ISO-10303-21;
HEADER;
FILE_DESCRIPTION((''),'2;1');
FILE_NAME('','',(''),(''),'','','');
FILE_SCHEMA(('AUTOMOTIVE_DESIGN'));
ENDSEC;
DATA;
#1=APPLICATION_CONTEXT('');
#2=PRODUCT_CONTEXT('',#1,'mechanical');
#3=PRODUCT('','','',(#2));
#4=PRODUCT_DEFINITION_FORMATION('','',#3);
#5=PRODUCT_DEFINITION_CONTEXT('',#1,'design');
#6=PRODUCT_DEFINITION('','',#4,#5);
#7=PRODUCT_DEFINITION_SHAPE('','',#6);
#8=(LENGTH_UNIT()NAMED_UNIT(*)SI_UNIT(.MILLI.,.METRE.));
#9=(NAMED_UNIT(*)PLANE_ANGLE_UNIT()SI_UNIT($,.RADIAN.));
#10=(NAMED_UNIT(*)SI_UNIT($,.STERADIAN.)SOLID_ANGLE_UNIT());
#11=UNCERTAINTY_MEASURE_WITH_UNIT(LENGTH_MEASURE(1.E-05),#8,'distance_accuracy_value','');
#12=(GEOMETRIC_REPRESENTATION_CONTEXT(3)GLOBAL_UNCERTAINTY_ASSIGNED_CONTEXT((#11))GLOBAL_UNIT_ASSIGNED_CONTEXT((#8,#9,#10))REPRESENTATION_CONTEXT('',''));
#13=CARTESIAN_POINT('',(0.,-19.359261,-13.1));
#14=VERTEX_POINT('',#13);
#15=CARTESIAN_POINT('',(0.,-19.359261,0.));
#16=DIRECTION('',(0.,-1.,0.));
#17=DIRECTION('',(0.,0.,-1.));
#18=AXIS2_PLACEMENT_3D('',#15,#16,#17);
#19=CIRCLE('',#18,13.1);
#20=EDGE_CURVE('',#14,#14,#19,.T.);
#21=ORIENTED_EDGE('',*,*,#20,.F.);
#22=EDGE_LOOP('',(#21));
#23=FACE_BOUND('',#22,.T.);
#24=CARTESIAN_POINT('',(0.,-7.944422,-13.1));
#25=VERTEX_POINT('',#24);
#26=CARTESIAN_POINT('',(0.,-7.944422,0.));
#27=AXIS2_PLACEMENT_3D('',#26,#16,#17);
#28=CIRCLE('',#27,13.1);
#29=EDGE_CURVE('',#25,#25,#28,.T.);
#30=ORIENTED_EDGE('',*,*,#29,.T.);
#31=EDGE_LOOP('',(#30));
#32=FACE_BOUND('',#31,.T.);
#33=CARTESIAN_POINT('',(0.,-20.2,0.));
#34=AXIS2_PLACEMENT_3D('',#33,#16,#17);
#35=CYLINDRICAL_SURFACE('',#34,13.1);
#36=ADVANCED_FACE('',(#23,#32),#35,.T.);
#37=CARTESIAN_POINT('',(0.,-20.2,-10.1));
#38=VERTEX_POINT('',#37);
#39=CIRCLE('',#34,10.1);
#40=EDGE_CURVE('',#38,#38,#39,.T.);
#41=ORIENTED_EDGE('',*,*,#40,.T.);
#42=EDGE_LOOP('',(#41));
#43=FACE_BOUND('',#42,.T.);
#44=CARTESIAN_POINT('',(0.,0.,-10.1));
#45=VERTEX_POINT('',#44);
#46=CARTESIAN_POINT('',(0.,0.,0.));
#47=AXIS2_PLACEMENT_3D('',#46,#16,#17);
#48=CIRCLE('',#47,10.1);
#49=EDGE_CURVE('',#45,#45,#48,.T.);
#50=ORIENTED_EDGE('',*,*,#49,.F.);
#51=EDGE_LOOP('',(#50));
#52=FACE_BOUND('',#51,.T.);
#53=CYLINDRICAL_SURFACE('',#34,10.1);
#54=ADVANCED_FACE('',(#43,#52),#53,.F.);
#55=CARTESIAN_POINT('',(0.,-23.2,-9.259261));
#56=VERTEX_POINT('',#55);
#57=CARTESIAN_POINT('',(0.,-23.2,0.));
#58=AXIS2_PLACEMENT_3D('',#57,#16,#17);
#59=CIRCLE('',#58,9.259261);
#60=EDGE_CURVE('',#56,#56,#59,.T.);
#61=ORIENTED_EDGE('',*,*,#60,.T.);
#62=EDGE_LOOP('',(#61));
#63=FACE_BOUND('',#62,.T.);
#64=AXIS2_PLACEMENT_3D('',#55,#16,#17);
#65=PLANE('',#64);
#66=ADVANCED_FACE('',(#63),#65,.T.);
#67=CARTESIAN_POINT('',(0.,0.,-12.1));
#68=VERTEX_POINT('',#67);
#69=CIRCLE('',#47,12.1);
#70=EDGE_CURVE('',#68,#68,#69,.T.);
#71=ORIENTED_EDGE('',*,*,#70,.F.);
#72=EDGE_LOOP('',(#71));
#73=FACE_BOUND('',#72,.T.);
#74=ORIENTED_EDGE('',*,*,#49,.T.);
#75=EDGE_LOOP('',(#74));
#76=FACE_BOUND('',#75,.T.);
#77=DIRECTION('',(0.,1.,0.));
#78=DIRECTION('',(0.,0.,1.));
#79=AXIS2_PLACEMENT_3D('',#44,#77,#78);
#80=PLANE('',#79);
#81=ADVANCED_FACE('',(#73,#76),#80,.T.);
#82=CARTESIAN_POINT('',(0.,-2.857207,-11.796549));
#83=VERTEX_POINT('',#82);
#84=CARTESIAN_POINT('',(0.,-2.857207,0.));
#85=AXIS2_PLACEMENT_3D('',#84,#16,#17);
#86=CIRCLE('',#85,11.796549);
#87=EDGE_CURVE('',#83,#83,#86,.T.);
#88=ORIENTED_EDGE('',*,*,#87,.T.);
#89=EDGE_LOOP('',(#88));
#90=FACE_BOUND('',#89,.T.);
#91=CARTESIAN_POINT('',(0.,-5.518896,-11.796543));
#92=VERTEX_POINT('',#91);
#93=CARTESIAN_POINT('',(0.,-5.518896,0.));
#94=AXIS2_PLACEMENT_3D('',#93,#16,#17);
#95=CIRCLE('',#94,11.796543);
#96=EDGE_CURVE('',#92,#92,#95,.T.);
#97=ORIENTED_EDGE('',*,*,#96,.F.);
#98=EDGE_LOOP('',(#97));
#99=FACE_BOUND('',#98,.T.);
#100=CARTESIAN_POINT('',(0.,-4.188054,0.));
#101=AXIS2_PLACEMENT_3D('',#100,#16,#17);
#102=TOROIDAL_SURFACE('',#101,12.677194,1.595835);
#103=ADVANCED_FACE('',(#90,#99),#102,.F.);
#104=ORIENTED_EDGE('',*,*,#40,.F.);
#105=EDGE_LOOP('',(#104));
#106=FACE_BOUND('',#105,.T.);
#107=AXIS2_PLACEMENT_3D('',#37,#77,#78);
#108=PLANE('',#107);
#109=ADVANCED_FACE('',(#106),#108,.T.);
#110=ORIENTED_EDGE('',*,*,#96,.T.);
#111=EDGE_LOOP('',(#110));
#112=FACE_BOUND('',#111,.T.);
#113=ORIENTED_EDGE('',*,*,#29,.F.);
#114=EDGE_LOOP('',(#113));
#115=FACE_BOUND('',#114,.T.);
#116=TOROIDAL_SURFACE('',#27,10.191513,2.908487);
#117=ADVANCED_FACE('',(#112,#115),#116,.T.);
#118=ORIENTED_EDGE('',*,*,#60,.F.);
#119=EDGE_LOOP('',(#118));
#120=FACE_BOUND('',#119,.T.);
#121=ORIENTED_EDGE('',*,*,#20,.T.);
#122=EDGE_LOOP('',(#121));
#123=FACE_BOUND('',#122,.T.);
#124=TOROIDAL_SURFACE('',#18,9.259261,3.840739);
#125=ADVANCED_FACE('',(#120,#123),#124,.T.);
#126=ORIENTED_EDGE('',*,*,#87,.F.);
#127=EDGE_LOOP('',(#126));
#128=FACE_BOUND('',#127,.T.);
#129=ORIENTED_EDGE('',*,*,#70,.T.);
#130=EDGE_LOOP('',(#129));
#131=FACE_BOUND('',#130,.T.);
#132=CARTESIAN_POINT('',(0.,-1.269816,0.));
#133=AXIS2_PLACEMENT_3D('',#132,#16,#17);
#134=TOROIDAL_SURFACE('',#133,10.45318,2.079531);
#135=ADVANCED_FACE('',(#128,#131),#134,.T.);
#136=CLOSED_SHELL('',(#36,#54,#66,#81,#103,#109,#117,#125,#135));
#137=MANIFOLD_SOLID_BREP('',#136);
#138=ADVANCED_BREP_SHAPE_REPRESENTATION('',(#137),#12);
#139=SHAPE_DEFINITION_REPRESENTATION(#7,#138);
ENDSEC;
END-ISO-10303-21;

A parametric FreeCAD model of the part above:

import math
import FreeCAD as App
import Part
import Sketcher

V = App.Vector

doc = App.newDocument("Part")
body = doc.addObject("PartDesign::Body", "Body")

# Sketch on YZ plane
sketch1 = body.newObject("Sketcher::SketchObject", "Sketch")
sketch1.AttachmentSupport = (doc.getObject("YZ_Plane"), [""])
sketch1.MapMode = "FlatFace"
sketch1.addGeometry(Part.LineSegment(V(0, -12.1, 0), V(0, -10.1, 0)), False)
sketch1.addGeometry(Part.LineSegment(V(0, -10.1, 0), V(-20.2, -10.1, 0)), False)
sketch1.addGeometry(Part.LineSegment(V(-20.2, -10.1, 0), V(-20.2, 0, 0)), False)
sketch1.addGeometry(Part.LineSegment(V(-20.2, 0, 0), V(-23.2, 0, 0)), False)
sketch1.addGeometry(Part.LineSegment(V(-23.2, 0, 0), V(-23.2, -9.3, 0)), False)
sketch1.addGeometry(Part.ArcOfCircle(Part.Circle(V(-19.4, -9.3, 0), V(0, 0, 1), 3.8), math.radians(180), math.radians(270)), False)
sketch1.addGeometry(Part.LineSegment(V(-19.4, -13.1, 0), V(-7.9, -13.1, 0)), False)
sketch1.addGeometry(Part.ArcOfCircle(Part.Circle(V(-7.9, -10.2, 0), V(0, 0, 1), 2.9), math.radians(-90), math.radians(-33)), False)
sketch1.addGeometry(Part.ArcOfCircle(Part.Circle(V(-4.2, -12.7, 0), V(0, 0, 1), 1.6), math.radians(33), math.radians(147)), False)
sketch1.addGeometry(Part.ArcOfCircle(Part.Circle(V(-1.3, -10.5, 0), V(0, 0, 1), 2.1), math.radians(-140), math.radians(-52)), False)
sketch1.addConstraint(Sketcher.Constraint("Coincident", 0, 2, 1, 1))
sketch1.addConstraint(Sketcher.Constraint("Coincident", 1, 2, 2, 1))
sketch1.addConstraint(Sketcher.Constraint("Coincident", 2, 2, 3, 1))
sketch1.addConstraint(Sketcher.Constraint("Coincident", 3, 2, 4, 1))
sketch1.addConstraint(Sketcher.Constraint("Tangent", 4, 2, 5, 1))
sketch1.addConstraint(Sketcher.Constraint("Tangent", 5, 2, 6, 1))
sketch1.addConstraint(Sketcher.Constraint("Tangent", 6, 2, 7, 1))
sketch1.addConstraint(Sketcher.Constraint("Tangent", 7, 2, 8, 2))
sketch1.addConstraint(Sketcher.Constraint("Coincident", 8, 1, 9, 1))
sketch1.addConstraint(Sketcher.Constraint("Coincident", 9, 2, 0, 1))
sketch1.addConstraint(Sketcher.Constraint("Vertical", 0))
sketch1.addConstraint(Sketcher.Constraint("Horizontal", 1))
sketch1.addConstraint(Sketcher.Constraint("Vertical", 2))
sketch1.addConstraint(Sketcher.Constraint("Horizontal", 3))
sketch1.addConstraint(Sketcher.Constraint("Vertical", 4))
sketch1.addConstraint(Sketcher.Constraint("Horizontal", 6))
sketch1.addConstraint(Sketcher.Constraint("PointOnObject", 0, 2, -2))
sketch1.addConstraint(Sketcher.Constraint("PointOnObject", 2, 2, -1))
sketch1.addConstraint(Sketcher.Constraint("DistanceX", 3, 2, 3, 1, 3.0))
sketch1.addConstraint(Sketcher.Constraint("DistanceY", 0, 1, 0, 2, 2.0))
sketch1.addConstraint(Sketcher.Constraint("DistanceX", 1, 2, 1, 1, 20.2))
sketch1.addConstraint(Sketcher.Constraint("DistanceY", 2, 1, 2, 2, 10.1))
sketch1.addConstraint(Sketcher.Constraint("DistanceY", 5, 2, 1, 2, 3.0))
sketch1.addConstraint(Sketcher.Constraint("Radius", 5, 3.840739))
sketch1.addConstraint(Sketcher.Constraint("Radius", 9, 2.079531))
sketch1.addConstraint(Sketcher.Constraint("Radius", 7, 2.908487))
sketch1.addConstraint(Sketcher.Constraint("Radius", 8, 1.595835))
sketch1.addConstraint(Sketcher.Constraint("DistanceX", 6, 1, 6, 2, 11.414838))
sketch1.addConstraint(Sketcher.Constraint("DistanceY", 9, 3, -1, 1, 10.45318))
sketch1.addConstraint(Sketcher.Constraint("DistanceY", 8, 1, -1, 1, 11.796549))
revolution = body.newObject("PartDesign::Revolution", "Revolution")
revolution.Profile = sketch1
revolution.ReferenceAxis = (sketch1, ["H_Axis"])
revolution.Angle = 360

doc.recompute()
